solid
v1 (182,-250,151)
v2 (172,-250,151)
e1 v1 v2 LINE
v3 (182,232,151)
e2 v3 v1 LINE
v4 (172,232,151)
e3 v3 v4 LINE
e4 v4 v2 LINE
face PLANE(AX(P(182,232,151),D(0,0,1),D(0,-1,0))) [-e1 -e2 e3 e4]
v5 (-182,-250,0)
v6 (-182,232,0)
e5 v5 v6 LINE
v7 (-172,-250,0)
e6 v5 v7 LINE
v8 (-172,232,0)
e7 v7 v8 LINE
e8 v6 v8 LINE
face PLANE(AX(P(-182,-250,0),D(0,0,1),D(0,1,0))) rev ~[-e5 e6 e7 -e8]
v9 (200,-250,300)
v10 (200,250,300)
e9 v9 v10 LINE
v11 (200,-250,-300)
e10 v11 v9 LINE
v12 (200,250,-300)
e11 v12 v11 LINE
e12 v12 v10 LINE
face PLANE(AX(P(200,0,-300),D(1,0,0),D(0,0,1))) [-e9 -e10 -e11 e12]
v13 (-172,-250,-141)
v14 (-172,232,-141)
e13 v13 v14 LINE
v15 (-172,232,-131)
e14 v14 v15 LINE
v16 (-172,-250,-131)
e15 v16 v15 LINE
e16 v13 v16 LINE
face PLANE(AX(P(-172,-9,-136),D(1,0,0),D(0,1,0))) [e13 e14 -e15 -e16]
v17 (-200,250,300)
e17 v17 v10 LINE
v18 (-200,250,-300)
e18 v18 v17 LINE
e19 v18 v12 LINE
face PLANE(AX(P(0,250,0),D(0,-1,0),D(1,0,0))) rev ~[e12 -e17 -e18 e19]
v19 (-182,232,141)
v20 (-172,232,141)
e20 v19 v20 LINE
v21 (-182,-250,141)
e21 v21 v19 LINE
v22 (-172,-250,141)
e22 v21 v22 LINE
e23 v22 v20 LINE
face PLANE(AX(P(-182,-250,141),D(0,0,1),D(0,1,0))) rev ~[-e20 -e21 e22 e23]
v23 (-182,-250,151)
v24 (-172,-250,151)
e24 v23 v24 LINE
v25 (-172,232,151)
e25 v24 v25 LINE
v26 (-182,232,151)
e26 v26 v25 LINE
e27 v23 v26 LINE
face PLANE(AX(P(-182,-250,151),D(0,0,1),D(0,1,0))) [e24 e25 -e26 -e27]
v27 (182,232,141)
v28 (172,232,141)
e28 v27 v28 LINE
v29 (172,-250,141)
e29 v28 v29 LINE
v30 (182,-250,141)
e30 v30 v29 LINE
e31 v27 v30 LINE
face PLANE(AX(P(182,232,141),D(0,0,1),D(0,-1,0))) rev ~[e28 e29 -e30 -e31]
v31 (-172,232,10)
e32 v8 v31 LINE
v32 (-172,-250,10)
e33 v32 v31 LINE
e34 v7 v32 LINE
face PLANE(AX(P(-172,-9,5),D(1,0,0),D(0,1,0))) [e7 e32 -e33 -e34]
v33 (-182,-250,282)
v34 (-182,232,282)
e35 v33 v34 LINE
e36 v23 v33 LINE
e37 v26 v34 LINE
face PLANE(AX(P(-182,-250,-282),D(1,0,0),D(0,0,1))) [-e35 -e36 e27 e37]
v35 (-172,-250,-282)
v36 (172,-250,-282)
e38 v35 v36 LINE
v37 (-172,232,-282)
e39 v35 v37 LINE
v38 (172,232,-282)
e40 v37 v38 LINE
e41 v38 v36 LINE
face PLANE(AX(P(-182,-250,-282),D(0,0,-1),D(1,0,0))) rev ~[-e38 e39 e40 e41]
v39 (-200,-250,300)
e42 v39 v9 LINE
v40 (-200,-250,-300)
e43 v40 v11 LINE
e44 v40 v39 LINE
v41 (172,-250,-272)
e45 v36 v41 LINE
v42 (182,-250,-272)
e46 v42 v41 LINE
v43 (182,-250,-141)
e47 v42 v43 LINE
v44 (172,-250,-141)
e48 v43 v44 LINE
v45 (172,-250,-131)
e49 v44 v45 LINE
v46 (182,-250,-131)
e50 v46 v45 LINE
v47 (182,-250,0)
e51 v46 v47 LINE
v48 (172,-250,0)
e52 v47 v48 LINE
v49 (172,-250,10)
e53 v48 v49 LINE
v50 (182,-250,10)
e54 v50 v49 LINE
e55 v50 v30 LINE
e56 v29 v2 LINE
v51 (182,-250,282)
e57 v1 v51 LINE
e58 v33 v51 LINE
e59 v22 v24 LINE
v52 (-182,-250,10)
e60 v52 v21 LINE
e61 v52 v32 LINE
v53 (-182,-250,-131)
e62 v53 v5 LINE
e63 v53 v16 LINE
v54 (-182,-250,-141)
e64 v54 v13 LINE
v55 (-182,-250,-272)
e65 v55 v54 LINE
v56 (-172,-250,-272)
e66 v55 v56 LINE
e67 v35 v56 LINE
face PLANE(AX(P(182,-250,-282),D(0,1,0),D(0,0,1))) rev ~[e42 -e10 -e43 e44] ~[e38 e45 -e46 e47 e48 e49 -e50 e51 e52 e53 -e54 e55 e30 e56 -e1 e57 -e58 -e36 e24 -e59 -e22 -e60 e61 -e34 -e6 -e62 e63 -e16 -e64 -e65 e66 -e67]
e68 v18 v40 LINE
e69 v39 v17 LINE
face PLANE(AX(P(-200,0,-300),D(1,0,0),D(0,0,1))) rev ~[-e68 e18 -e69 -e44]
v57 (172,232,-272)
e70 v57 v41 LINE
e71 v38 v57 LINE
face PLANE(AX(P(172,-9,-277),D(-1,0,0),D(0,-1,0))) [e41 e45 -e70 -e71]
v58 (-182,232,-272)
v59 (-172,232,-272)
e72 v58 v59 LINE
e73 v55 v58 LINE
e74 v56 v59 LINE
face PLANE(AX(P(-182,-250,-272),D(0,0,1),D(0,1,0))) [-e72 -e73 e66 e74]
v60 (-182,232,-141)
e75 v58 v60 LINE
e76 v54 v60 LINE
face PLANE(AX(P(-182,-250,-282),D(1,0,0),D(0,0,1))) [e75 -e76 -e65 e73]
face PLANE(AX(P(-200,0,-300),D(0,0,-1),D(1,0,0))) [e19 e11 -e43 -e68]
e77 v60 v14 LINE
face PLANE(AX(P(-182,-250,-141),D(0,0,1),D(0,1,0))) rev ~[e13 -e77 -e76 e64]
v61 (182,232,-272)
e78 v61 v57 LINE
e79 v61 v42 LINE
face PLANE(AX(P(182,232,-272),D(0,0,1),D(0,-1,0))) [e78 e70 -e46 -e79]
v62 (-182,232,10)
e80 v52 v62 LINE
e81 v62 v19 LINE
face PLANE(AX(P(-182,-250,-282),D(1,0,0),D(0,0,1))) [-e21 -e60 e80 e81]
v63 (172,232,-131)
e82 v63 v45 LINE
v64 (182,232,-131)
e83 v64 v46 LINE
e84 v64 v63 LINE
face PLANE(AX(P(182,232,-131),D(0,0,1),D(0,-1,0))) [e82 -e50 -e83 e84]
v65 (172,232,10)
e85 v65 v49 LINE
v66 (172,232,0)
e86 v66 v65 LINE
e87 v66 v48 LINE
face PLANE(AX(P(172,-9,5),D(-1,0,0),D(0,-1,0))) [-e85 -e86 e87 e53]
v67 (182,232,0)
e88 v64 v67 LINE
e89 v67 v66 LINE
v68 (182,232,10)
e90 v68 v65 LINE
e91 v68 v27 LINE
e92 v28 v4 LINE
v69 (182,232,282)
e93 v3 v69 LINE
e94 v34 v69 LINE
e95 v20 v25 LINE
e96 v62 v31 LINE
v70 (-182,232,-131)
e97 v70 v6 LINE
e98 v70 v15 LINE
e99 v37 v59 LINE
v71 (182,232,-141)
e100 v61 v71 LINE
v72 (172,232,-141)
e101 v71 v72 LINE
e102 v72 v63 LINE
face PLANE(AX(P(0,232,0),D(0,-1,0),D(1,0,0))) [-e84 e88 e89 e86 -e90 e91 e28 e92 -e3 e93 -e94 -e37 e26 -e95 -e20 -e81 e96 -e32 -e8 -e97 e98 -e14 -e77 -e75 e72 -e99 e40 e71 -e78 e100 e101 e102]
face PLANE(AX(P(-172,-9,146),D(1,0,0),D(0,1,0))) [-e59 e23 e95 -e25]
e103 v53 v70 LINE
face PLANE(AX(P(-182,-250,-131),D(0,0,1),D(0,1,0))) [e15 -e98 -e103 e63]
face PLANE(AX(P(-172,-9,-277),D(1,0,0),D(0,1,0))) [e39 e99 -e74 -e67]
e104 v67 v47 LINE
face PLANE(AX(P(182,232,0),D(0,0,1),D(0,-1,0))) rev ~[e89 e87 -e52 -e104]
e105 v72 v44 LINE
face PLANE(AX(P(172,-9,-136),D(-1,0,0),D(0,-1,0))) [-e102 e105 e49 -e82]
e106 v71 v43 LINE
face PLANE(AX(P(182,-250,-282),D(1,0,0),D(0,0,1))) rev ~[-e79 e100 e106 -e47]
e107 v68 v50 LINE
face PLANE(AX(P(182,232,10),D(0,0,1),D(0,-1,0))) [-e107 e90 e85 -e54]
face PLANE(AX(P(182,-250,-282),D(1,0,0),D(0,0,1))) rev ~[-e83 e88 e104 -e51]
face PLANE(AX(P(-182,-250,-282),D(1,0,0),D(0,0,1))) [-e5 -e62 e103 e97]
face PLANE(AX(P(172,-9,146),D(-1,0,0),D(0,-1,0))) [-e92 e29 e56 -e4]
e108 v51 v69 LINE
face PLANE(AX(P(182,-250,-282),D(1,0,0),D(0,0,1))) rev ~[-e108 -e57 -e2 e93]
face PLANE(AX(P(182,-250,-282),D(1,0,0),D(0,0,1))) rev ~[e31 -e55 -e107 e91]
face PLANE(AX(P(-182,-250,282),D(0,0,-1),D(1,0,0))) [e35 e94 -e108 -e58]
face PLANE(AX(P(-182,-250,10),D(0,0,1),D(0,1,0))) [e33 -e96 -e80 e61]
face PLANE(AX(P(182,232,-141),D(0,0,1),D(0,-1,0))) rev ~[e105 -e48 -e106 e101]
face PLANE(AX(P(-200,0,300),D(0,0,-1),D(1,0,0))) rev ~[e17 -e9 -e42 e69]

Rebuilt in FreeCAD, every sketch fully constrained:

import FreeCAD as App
import Part
import Sketcher
from FreeCAD import Vector
Q = App.Units.Quantity

doc = App.newDocument("Part")
body = doc.addObject("PartDesign::Body", "Body")

# Sketch on XZ plane
sketch1 = body.newObject("Sketcher::SketchObject", "Sketch")
sketch1.AttachmentSupport = (doc.getObject("XZ_Plane"), [""])
sketch1.MapMode = "FlatFace"
sketch1.addGeometry([
    Part.LineSegment(Vector(-200, 300, 0), Vector(-200, -300, 0)),
    Part.LineSegment(Vector(-200, -300, 0), Vector(200, -300, 0)),
    Part.LineSegment(Vector(200, -300, 0), Vector(200, 300, 0)),
    Part.LineSegment(Vector(200, 300, 0), Vector(-200, 300, 0)),
], False)
sketch1.addConstraint([
    Sketcher.Constraint("Coincident", 0, 2, 1, 1),
    Sketcher.Constraint("Coincident", 1, 2, 2, 1),
    Sketcher.Constraint("Coincident", 2, 2, 3, 1),
    Sketcher.Constraint("Coincident", 3, 2, 0, 1),
    Sketcher.Constraint("Vertical", 0),
    Sketcher.Constraint("Horizontal", 1),
    Sketcher.Constraint("Vertical", 2),
    Sketcher.Constraint("Horizontal", 3),
    Sketcher.Constraint("Symmetric", 0, 2, 2, 2, -1, 1),
    Sketcher.Constraint("DistanceX", 1, 1, 1, 2, Q("400 mm")),
    Sketcher.Constraint("DistanceY", 0, 2, 0, 1, Q("600 mm")),
])
pad1 = body.newObject("PartDesign::Pad", "Pad")
pad1.Profile = sketch1
pad1.Length = 500
pad1.Midplane = True

# Sketch on XZ plane
sketch2 = body.newObject("Sketcher::SketchObject", "Sketch001")
sketch2.AttachmentSupport = (doc.getObject("XZ_Plane"), [""])
sketch2.MapMode = "FlatFace"
sketch2.AttachmentOffset = App.Placement(Vector(0, 0, 250), App.Rotation())
sketch2.addGeometry([
    Part.LineSegment(Vector(-182, 282, 0), Vector(-182, -282, 0)),
    Part.LineSegment(Vector(-182, -282, 0), Vector(182, -282, 0)),
    Part.LineSegment(Vector(182, -282, 0), Vector(182, 282, 0)),
    Part.LineSegment(Vector(182, 282, 0), Vector(-182, 282, 0)),
], False)
sketch2.addConstraint([
    Sketcher.Constraint("Coincident", 0, 2, 1, 1),
    Sketcher.Constraint("Coincident", 1, 2, 2, 1),
    Sketcher.Constraint("Coincident", 2, 2, 3, 1),
    Sketcher.Constraint("Coincident", 3, 2, 0, 1),
    Sketcher.Constraint("Vertical", 0),
    Sketcher.Constraint("Horizontal", 1),
    Sketcher.Constraint("Vertical", 2),
    Sketcher.Constraint("Horizontal", 3),
    Sketcher.Constraint("Symmetric", 0, 2, 2, 2, -1, 1),
    Sketcher.Constraint("DistanceX", 1, 1, 1, 2, Q("364 mm")),
    Sketcher.Constraint("DistanceY", 0, 2, 0, 1, Q("564 mm")),
])
pocket1 = body.newObject("PartDesign::Pocket", "Pocket")
pocket1.Profile = sketch2
pocket1.Length = 482

# Sketch on YZ plane
sketch3 = body.newObject("Sketcher::SketchObject", "Sketch002")
sketch3.AttachmentSupport = (doc.getObject("YZ_Plane"), [""])
sketch3.MapMode = "FlatFace"
sketch3.AttachmentOffset = App.Placement(Vector(0, 0, -182), App.Rotation())
sketch3.addGeometry([
    Part.LineSegment(Vector(-250, 151, 0), Vector(-250, 141, 0)),  # 0
    Part.LineSegment(Vector(-250, 141, 0), Vector(232, 141, 0)),  # 1
    Part.LineSegment(Vector(232, 141, 0), Vector(232, 151, 0)),  # 2
    Part.LineSegment(Vector(232, 151, 0), Vector(-250, 151, 0)),  # 3
    Part.LineSegment(Vector(-250, 10, 0), Vector(-250, 0, 0)),  # 4
    Part.LineSegment(Vector(-250, 0, 0), Vector(232, 0, 0)),  # 5
    Part.LineSegment(Vector(232, 0, 0), Vector(232, 10, 0)),  # 6
    Part.LineSegment(Vector(232, 10, 0), Vector(-250, 10, 0)),  # 7
    Part.LineSegment(Vector(-250, -131, 0), Vector(-250, -141, 0)),  # 8
    Part.LineSegment(Vector(-250, -141, 0), Vector(232, -141, 0)),  # 9
    Part.LineSegment(Vector(232, -141, 0), Vector(232, -131, 0)),  # 10
    Part.LineSegment(Vector(232, -131, 0), Vector(-250, -131, 0)),  # 11
    Part.LineSegment(Vector(-250, -272, 0), Vector(-250, -282, 0)),  # 12
    Part.LineSegment(Vector(-250, -282, 0), Vector(232, -282, 0)),  # 13
    Part.LineSegment(Vector(232, -282, 0), Vector(232, -272, 0)),  # 14
    Part.LineSegment(Vector(232, -272, 0), Vector(-250, -272, 0)),  # 15
], False)
sketch3.addConstraint([
    Sketcher.Constraint("Coincident", 0, 2, 1, 1),
    Sketcher.Constraint("Coincident", 1, 2, 2, 1),
    Sketcher.Constraint("Coincident", 2, 2, 3, 1),
    Sketcher.Constraint("Coincident", 3, 2, 0, 1),
    Sketcher.Constraint("Coincident", 4, 2, 5, 1),
    Sketcher.Constraint("Coincident", 5, 2, 6, 1),
    Sketcher.Constraint("Coincident", 6, 2, 7, 1),
    Sketcher.Constraint("Coincident", 7, 2, 4, 1),
    Sketcher.Constraint("Coincident", 8, 2, 9, 1),
    Sketcher.Constraint("Coincident", 9, 2, 10, 1),
    Sketcher.Constraint("Coincident", 10, 2, 11, 1),
    Sketcher.Constraint("Coincident", 11, 2, 8, 1),
    Sketcher.Constraint("Coincident", 12, 2, 13, 1),
    Sketcher.Constraint("Coincident", 13, 2, 14, 1),
    Sketcher.Constraint("Coincident", 14, 2, 15, 1),
    Sketcher.Constraint("Coincident", 15, 2, 12, 1),
    Sketcher.Constraint("Vertical", 0),
    Sketcher.Constraint("Horizontal", 1),
    Sketcher.Constraint("Vertical", 2),
    Sketcher.Constraint("Horizontal", 3),
    Sketcher.Constraint("Vertical", 4),
    Sketcher.Constraint("Horizontal", 5),
    Sketcher.Constraint("Vertical", 6),
    Sketcher.Constraint("Horizontal", 7),
    Sketcher.Constraint("Vertical", 8),
    Sketcher.Constraint("Horizontal", 9),
    Sketcher.Constraint("Vertical", 10),
    Sketcher.Constraint("Horizontal", 11),
    Sketcher.Constraint("Vertical", 12),
    Sketcher.Constraint("Horizontal", 13),
    Sketcher.Constraint("Vertical", 14),
    Sketcher.Constraint("Horizontal", 15),
    Sketcher.Constraint("Symmetric", 0, 2, 8, 2, -1),
    Sketcher.Constraint("PointOnObject", 4, 2, -1),
    Sketcher.Constraint("Vertical", 3, 2, 4, 2),
    Sketcher.Constraint("Vertical", 2, 2, 5, 2),
    Sketcher.Constraint("Vertical", 6, 2, 9, 2),
    Sketcher.Constraint("Vertical", 11, 2, 12, 2),
    Sketcher.Constraint("Vertical", 10, 2, 13, 2),
    Sketcher.Constraint("Equal", 2, 4),
    Sketcher.Constraint("Equal", 6, 8),
    Sketcher.Constraint("Equal", 10, 12),
    Sketcher.Constraint("DistanceX", 1, 1, 1, 2, Q("482 mm")),
    Sketcher.Constraint("DistanceY", 0, 2, 0, 1, Q("10 mm")),
    Sketcher.Constraint("DistanceX", 0, 2, -1, 1, Q("250 mm")),
    Sketcher.Constraint("DistanceY", -1, 1, 0, 2, Q("141 mm")),
    Sketcher.Constraint("DistanceY", 12, 2, -1, 1, Q("282 mm")),
])
pad2 = body.newObject("PartDesign::Pad", "Pad001")
pad2.Profile = sketch3
pad2.Length = 10

# Sketch on YZ plane
sketch4 = body.newObject("Sketcher::SketchObject", "Sketch003")
sketch4.AttachmentSupport = (doc.getObject("YZ_Plane"), [""])
sketch4.MapMode = "FlatFace"
sketch4.AttachmentOffset = App.Placement(Vector(0, 0, 182), App.Rotation())
sketch4.addGeometry([
    Part.LineSegment(Vector(232, 151, 0), Vector(232, 141, 0)),  # 0
    Part.LineSegment(Vector(232, 141, 0), Vector(-250, 141, 0)),  # 1
    Part.LineSegment(Vector(-250, 141, 0), Vector(-250, 151, 0)),  # 2
    Part.LineSegment(Vector(-250, 151, 0), Vector(232, 151, 0)),  # 3
    Part.LineSegment(Vector(232, 10, 0), Vector(232, 0, 0)),  # 4
    Part.LineSegment(Vector(232, 0, 0), Vector(-250, 0, 0)),  # 5
    Part.LineSegment(Vector(-250, 0, 0), Vector(-250, 10, 0)),  # 6
    Part.LineSegment(Vector(-250, 10, 0), Vector(232, 10, 0)),  # 7
    Part.LineSegment(Vector(232, -131, 0), Vector(232, -141, 0)),  # 8
    Part.LineSegment(Vector(232, -141, 0), Vector(-250, -141, 0)),  # 9
    Part.LineSegment(Vector(-250, -141, 0), Vector(-250, -131, 0)),  # 10
    Part.LineSegment(Vector(-250, -131, 0), Vector(232, -131, 0)),  # 11
    Part.LineSegment(Vector(232, -272, 0), Vector(232, -282, 0)),  # 12
    Part.LineSegment(Vector(232, -282, 0), Vector(-250, -282, 0)),  # 13
    Part.LineSegment(Vector(-250, -282, 0), Vector(-250, -272, 0)),  # 14
    Part.LineSegment(Vector(-250, -272, 0), Vector(232, -272, 0)),  # 15
], False)
sketch4.addConstraint([
    Sketcher.Constraint("Coincident", 0, 2, 1, 1),
    Sketcher.Constraint("Coincident", 1, 2, 2, 1),
    Sketcher.Constraint("Coincident", 2, 2, 3, 1),
    Sketcher.Constraint("Coincident", 3, 2, 0, 1),
    Sketcher.Constraint("Coincident", 4, 2, 5, 1),
    Sketcher.Constraint("Coincident", 5, 2, 6, 1),
    Sketcher.Constraint("Coincident", 6, 2, 7, 1),
    Sketcher.Constraint("Coincident", 7, 2, 4, 1),
    Sketcher.Constraint("Coincident", 8, 2, 9, 1),
    Sketcher.Constraint("Coincident", 9, 2, 10, 1),
    Sketcher.Constraint("Coincident", 10, 2, 11, 1),
    Sketcher.Constraint("Coincident", 11, 2, 8, 1),
    Sketcher.Constraint("Coincident", 12, 2, 13, 1),
    Sketcher.Constraint("Coincident", 13, 2, 14, 1),
    Sketcher.Constraint("Coincident", 14, 2, 15, 1),
    Sketcher.Constraint("Coincident", 15, 2, 12, 1),
    Sketcher.Constraint("Vertical", 0),
    Sketcher.Constraint("Horizontal", 1),
    Sketcher.Constraint("Vertical", 2),
    Sketcher.Constraint("Horizontal", 3),
    Sketcher.Constraint("Vertical", 4),
    Sketcher.Constraint("Horizontal", 5),
    Sketcher.Constraint("Vertical", 6),
    Sketcher.Constraint("Horizontal", 7),
    Sketcher.Constraint("Vertical", 8),
    Sketcher.Constraint("Horizontal", 9),
    Sketcher.Constraint("Vertical", 10),
    Sketcher.Constraint("Horizontal", 11),
    Sketcher.Constraint("Vertical", 12),
    Sketcher.Constraint("Horizontal", 13),
    Sketcher.Constraint("Vertical", 14),
    Sketcher.Constraint("Horizontal", 15),
    Sketcher.Constraint("Symmetric", 0, 2, 8, 2, -1),
    Sketcher.Constraint("PointOnObject", 4, 2, -1),
    Sketcher.Constraint("Vertical", 3, 2, 4, 2),
    Sketcher.Constraint("Vertical", 2, 2, 5, 2),
    Sketcher.Constraint("Vertical", 6, 2, 9, 2),
    Sketcher.Constraint("Vertical", 11, 2, 12, 2),
    Sketcher.Constraint("Vertical", 10, 2, 13, 2),
    Sketcher.Constraint("Equal", 2, 4),
    Sketcher.Constraint("Equal", 6, 8),
    Sketcher.Constraint("Equal", 10, 12),
    Sketcher.Constraint("DistanceX", 1, 2, 1, 1, Q("482 mm")),
    Sketcher.Constraint("DistanceY", 0, 2, 0, 1, Q("10 mm")),
    Sketcher.Constraint("DistanceX", -1, 1, 0, 2, Q("232 mm")),
    Sketcher.Constraint("DistanceY", -1, 1, 0, 2, Q("141 mm")),
    Sketcher.Constraint("DistanceY", 12, 2, -1, 1, Q("282 mm")),
])
pad3 = body.newObject("PartDesign::Pad", "Pad002")
pad3.Profile = sketch4
pad3.Length = 10
pad3.Reversed = True

doc.recompute()
